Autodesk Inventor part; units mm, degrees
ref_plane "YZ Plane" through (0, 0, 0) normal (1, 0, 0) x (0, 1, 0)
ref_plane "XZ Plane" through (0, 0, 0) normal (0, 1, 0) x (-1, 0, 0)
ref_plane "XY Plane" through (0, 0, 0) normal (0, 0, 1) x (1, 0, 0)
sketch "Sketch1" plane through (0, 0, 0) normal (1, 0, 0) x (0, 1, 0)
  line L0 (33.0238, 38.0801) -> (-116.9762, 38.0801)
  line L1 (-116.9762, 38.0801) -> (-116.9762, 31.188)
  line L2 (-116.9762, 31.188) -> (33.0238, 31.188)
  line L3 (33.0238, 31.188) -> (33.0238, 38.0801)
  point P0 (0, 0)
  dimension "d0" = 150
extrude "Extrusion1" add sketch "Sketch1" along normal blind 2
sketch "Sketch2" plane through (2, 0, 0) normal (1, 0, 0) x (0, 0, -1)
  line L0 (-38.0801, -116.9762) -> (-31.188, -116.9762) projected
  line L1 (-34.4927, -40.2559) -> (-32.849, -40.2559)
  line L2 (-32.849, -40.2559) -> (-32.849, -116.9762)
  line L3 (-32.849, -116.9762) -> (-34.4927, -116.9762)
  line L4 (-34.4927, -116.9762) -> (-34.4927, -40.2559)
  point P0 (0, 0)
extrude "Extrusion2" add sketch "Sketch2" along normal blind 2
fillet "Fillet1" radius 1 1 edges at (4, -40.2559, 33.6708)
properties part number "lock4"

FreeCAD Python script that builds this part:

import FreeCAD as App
import Part
import Sketcher


def edges_at(feature, points):
    """Names of the edges that pass closest to the given points."""
    edges = feature.Shape.Edges
    near = lambda p: min(range(len(edges)), key=lambda i: edges[i].distToShape(Part.Vertex(*p))[0])
    return sorted({f"Edge{near(p) + 1}" for p in points})


def add_polygon(sketch, points):
    """Adds a closed chain of lines whose ends are joined by coincident constraints."""
    first, n = sketch.GeometryCount, len(points)
    for a, b in zip(points, points[1:] + points[:1]):
        sketch.addGeometry(Part.LineSegment(App.Vector(*a, 0), App.Vector(*b, 0)), False)
    for i in range(n):
        sketch.addConstraint(Sketcher.Constraint("Coincident", first + i, 2, first + (i + 1) % n, 1))

doc = App.newDocument("Part")
params = doc.addObject("Spreadsheet::Sheet", "Params")
for row, (alias, value) in enumerate([
    ("sketch1_width", "150 mm"),
    ("pad1_length", "2 mm"),
    ("pad2_length", "2 mm"),
    ("fillet_radius", "1 mm"),
], start=1):
    params.set(f"A{row}", alias)
    params.set(f"B{row}", "=" + value)
    params.setAlias(f"B{row}", alias)

body = doc.addObject("PartDesign::Body", "Body")

sketch1 = body.newObject("Sketcher::SketchObject", "Sketch")
sketch1.AttachmentSupport = (doc.getObject("YZ_Plane"), [""])
sketch1.MapMode = "FlatFace"
add_polygon(sketch1, [(33, 31), (33, 38), (-117, 38), (-117, 31)])
sketch1.addConstraint([
    Sketcher.Constraint("Vertical", 0),
    Sketcher.Constraint("Horizontal", 1),
    Sketcher.Constraint("Vertical", 2),
    Sketcher.Constraint("Horizontal", 3),
    Sketcher.Constraint("DistanceX", 1, 2, 1, 1, 150.0),
    Sketcher.Constraint("DistanceY", 0, 1, 0, 2, 6.892),
    Sketcher.Constraint("DistanceY", -1, 1, 0, 2, 38.08),
    Sketcher.Constraint("DistanceX", -1, 1, 0, 2, 33.0238),
])
sketch1.setExpression("Constraints[8]", "Params.sketch1_width")
pad1 = body.newObject("PartDesign::Pad", "Pad")
pad1.Profile = sketch1
pad1.setExpression("Length", "Params.pad1_length")

sketch2 = body.newObject("Sketcher::SketchObject", "Sketch001")
sketch2.AttachmentSupport = (doc.getObject("YZ_Plane"), [""])
sketch2.MapMode = "FlatFace"
sketch2.AttachmentOffset = App.Placement(App.Vector(0, 0, 2), App.Rotation())
add_polygon(sketch2, [(-40.3, 34.5), (-117, 34.5), (-117, 32.8), (-40.3, 32.8)])
sketch2.addConstraint([
    Sketcher.Constraint("Horizontal", 0),
    Sketcher.Constraint("Vertical", 1),
    Sketcher.Constraint("Horizontal", 2),
    Sketcher.Constraint("Vertical", 3),
    Sketcher.Constraint("DistanceX", 0, 2, 0, 1, 76.7203),
    Sketcher.Constraint("DistanceY", 1, 2, 1, 1, 1.6437),
    Sketcher.Constraint("DistanceY", -1, 1, 1, 2, 32.849),
    Sketcher.Constraint("DistanceX", 2, 2, -1, 1, 40.256),
])
pad2 = body.newObject("PartDesign::Pad", "Pad001")
pad2.Profile = sketch2
pad2.setExpression("Length", "Params.pad2_length")
doc.recompute()

fillet = body.newObject("PartDesign::Fillet", "Fillet")
fillet.Base = (pad2, edges_at(pad2, [(4, -40.256, 33.671)]))
fillet.setExpression("Radius", "Params.fillet_radius")

doc.recompute()
